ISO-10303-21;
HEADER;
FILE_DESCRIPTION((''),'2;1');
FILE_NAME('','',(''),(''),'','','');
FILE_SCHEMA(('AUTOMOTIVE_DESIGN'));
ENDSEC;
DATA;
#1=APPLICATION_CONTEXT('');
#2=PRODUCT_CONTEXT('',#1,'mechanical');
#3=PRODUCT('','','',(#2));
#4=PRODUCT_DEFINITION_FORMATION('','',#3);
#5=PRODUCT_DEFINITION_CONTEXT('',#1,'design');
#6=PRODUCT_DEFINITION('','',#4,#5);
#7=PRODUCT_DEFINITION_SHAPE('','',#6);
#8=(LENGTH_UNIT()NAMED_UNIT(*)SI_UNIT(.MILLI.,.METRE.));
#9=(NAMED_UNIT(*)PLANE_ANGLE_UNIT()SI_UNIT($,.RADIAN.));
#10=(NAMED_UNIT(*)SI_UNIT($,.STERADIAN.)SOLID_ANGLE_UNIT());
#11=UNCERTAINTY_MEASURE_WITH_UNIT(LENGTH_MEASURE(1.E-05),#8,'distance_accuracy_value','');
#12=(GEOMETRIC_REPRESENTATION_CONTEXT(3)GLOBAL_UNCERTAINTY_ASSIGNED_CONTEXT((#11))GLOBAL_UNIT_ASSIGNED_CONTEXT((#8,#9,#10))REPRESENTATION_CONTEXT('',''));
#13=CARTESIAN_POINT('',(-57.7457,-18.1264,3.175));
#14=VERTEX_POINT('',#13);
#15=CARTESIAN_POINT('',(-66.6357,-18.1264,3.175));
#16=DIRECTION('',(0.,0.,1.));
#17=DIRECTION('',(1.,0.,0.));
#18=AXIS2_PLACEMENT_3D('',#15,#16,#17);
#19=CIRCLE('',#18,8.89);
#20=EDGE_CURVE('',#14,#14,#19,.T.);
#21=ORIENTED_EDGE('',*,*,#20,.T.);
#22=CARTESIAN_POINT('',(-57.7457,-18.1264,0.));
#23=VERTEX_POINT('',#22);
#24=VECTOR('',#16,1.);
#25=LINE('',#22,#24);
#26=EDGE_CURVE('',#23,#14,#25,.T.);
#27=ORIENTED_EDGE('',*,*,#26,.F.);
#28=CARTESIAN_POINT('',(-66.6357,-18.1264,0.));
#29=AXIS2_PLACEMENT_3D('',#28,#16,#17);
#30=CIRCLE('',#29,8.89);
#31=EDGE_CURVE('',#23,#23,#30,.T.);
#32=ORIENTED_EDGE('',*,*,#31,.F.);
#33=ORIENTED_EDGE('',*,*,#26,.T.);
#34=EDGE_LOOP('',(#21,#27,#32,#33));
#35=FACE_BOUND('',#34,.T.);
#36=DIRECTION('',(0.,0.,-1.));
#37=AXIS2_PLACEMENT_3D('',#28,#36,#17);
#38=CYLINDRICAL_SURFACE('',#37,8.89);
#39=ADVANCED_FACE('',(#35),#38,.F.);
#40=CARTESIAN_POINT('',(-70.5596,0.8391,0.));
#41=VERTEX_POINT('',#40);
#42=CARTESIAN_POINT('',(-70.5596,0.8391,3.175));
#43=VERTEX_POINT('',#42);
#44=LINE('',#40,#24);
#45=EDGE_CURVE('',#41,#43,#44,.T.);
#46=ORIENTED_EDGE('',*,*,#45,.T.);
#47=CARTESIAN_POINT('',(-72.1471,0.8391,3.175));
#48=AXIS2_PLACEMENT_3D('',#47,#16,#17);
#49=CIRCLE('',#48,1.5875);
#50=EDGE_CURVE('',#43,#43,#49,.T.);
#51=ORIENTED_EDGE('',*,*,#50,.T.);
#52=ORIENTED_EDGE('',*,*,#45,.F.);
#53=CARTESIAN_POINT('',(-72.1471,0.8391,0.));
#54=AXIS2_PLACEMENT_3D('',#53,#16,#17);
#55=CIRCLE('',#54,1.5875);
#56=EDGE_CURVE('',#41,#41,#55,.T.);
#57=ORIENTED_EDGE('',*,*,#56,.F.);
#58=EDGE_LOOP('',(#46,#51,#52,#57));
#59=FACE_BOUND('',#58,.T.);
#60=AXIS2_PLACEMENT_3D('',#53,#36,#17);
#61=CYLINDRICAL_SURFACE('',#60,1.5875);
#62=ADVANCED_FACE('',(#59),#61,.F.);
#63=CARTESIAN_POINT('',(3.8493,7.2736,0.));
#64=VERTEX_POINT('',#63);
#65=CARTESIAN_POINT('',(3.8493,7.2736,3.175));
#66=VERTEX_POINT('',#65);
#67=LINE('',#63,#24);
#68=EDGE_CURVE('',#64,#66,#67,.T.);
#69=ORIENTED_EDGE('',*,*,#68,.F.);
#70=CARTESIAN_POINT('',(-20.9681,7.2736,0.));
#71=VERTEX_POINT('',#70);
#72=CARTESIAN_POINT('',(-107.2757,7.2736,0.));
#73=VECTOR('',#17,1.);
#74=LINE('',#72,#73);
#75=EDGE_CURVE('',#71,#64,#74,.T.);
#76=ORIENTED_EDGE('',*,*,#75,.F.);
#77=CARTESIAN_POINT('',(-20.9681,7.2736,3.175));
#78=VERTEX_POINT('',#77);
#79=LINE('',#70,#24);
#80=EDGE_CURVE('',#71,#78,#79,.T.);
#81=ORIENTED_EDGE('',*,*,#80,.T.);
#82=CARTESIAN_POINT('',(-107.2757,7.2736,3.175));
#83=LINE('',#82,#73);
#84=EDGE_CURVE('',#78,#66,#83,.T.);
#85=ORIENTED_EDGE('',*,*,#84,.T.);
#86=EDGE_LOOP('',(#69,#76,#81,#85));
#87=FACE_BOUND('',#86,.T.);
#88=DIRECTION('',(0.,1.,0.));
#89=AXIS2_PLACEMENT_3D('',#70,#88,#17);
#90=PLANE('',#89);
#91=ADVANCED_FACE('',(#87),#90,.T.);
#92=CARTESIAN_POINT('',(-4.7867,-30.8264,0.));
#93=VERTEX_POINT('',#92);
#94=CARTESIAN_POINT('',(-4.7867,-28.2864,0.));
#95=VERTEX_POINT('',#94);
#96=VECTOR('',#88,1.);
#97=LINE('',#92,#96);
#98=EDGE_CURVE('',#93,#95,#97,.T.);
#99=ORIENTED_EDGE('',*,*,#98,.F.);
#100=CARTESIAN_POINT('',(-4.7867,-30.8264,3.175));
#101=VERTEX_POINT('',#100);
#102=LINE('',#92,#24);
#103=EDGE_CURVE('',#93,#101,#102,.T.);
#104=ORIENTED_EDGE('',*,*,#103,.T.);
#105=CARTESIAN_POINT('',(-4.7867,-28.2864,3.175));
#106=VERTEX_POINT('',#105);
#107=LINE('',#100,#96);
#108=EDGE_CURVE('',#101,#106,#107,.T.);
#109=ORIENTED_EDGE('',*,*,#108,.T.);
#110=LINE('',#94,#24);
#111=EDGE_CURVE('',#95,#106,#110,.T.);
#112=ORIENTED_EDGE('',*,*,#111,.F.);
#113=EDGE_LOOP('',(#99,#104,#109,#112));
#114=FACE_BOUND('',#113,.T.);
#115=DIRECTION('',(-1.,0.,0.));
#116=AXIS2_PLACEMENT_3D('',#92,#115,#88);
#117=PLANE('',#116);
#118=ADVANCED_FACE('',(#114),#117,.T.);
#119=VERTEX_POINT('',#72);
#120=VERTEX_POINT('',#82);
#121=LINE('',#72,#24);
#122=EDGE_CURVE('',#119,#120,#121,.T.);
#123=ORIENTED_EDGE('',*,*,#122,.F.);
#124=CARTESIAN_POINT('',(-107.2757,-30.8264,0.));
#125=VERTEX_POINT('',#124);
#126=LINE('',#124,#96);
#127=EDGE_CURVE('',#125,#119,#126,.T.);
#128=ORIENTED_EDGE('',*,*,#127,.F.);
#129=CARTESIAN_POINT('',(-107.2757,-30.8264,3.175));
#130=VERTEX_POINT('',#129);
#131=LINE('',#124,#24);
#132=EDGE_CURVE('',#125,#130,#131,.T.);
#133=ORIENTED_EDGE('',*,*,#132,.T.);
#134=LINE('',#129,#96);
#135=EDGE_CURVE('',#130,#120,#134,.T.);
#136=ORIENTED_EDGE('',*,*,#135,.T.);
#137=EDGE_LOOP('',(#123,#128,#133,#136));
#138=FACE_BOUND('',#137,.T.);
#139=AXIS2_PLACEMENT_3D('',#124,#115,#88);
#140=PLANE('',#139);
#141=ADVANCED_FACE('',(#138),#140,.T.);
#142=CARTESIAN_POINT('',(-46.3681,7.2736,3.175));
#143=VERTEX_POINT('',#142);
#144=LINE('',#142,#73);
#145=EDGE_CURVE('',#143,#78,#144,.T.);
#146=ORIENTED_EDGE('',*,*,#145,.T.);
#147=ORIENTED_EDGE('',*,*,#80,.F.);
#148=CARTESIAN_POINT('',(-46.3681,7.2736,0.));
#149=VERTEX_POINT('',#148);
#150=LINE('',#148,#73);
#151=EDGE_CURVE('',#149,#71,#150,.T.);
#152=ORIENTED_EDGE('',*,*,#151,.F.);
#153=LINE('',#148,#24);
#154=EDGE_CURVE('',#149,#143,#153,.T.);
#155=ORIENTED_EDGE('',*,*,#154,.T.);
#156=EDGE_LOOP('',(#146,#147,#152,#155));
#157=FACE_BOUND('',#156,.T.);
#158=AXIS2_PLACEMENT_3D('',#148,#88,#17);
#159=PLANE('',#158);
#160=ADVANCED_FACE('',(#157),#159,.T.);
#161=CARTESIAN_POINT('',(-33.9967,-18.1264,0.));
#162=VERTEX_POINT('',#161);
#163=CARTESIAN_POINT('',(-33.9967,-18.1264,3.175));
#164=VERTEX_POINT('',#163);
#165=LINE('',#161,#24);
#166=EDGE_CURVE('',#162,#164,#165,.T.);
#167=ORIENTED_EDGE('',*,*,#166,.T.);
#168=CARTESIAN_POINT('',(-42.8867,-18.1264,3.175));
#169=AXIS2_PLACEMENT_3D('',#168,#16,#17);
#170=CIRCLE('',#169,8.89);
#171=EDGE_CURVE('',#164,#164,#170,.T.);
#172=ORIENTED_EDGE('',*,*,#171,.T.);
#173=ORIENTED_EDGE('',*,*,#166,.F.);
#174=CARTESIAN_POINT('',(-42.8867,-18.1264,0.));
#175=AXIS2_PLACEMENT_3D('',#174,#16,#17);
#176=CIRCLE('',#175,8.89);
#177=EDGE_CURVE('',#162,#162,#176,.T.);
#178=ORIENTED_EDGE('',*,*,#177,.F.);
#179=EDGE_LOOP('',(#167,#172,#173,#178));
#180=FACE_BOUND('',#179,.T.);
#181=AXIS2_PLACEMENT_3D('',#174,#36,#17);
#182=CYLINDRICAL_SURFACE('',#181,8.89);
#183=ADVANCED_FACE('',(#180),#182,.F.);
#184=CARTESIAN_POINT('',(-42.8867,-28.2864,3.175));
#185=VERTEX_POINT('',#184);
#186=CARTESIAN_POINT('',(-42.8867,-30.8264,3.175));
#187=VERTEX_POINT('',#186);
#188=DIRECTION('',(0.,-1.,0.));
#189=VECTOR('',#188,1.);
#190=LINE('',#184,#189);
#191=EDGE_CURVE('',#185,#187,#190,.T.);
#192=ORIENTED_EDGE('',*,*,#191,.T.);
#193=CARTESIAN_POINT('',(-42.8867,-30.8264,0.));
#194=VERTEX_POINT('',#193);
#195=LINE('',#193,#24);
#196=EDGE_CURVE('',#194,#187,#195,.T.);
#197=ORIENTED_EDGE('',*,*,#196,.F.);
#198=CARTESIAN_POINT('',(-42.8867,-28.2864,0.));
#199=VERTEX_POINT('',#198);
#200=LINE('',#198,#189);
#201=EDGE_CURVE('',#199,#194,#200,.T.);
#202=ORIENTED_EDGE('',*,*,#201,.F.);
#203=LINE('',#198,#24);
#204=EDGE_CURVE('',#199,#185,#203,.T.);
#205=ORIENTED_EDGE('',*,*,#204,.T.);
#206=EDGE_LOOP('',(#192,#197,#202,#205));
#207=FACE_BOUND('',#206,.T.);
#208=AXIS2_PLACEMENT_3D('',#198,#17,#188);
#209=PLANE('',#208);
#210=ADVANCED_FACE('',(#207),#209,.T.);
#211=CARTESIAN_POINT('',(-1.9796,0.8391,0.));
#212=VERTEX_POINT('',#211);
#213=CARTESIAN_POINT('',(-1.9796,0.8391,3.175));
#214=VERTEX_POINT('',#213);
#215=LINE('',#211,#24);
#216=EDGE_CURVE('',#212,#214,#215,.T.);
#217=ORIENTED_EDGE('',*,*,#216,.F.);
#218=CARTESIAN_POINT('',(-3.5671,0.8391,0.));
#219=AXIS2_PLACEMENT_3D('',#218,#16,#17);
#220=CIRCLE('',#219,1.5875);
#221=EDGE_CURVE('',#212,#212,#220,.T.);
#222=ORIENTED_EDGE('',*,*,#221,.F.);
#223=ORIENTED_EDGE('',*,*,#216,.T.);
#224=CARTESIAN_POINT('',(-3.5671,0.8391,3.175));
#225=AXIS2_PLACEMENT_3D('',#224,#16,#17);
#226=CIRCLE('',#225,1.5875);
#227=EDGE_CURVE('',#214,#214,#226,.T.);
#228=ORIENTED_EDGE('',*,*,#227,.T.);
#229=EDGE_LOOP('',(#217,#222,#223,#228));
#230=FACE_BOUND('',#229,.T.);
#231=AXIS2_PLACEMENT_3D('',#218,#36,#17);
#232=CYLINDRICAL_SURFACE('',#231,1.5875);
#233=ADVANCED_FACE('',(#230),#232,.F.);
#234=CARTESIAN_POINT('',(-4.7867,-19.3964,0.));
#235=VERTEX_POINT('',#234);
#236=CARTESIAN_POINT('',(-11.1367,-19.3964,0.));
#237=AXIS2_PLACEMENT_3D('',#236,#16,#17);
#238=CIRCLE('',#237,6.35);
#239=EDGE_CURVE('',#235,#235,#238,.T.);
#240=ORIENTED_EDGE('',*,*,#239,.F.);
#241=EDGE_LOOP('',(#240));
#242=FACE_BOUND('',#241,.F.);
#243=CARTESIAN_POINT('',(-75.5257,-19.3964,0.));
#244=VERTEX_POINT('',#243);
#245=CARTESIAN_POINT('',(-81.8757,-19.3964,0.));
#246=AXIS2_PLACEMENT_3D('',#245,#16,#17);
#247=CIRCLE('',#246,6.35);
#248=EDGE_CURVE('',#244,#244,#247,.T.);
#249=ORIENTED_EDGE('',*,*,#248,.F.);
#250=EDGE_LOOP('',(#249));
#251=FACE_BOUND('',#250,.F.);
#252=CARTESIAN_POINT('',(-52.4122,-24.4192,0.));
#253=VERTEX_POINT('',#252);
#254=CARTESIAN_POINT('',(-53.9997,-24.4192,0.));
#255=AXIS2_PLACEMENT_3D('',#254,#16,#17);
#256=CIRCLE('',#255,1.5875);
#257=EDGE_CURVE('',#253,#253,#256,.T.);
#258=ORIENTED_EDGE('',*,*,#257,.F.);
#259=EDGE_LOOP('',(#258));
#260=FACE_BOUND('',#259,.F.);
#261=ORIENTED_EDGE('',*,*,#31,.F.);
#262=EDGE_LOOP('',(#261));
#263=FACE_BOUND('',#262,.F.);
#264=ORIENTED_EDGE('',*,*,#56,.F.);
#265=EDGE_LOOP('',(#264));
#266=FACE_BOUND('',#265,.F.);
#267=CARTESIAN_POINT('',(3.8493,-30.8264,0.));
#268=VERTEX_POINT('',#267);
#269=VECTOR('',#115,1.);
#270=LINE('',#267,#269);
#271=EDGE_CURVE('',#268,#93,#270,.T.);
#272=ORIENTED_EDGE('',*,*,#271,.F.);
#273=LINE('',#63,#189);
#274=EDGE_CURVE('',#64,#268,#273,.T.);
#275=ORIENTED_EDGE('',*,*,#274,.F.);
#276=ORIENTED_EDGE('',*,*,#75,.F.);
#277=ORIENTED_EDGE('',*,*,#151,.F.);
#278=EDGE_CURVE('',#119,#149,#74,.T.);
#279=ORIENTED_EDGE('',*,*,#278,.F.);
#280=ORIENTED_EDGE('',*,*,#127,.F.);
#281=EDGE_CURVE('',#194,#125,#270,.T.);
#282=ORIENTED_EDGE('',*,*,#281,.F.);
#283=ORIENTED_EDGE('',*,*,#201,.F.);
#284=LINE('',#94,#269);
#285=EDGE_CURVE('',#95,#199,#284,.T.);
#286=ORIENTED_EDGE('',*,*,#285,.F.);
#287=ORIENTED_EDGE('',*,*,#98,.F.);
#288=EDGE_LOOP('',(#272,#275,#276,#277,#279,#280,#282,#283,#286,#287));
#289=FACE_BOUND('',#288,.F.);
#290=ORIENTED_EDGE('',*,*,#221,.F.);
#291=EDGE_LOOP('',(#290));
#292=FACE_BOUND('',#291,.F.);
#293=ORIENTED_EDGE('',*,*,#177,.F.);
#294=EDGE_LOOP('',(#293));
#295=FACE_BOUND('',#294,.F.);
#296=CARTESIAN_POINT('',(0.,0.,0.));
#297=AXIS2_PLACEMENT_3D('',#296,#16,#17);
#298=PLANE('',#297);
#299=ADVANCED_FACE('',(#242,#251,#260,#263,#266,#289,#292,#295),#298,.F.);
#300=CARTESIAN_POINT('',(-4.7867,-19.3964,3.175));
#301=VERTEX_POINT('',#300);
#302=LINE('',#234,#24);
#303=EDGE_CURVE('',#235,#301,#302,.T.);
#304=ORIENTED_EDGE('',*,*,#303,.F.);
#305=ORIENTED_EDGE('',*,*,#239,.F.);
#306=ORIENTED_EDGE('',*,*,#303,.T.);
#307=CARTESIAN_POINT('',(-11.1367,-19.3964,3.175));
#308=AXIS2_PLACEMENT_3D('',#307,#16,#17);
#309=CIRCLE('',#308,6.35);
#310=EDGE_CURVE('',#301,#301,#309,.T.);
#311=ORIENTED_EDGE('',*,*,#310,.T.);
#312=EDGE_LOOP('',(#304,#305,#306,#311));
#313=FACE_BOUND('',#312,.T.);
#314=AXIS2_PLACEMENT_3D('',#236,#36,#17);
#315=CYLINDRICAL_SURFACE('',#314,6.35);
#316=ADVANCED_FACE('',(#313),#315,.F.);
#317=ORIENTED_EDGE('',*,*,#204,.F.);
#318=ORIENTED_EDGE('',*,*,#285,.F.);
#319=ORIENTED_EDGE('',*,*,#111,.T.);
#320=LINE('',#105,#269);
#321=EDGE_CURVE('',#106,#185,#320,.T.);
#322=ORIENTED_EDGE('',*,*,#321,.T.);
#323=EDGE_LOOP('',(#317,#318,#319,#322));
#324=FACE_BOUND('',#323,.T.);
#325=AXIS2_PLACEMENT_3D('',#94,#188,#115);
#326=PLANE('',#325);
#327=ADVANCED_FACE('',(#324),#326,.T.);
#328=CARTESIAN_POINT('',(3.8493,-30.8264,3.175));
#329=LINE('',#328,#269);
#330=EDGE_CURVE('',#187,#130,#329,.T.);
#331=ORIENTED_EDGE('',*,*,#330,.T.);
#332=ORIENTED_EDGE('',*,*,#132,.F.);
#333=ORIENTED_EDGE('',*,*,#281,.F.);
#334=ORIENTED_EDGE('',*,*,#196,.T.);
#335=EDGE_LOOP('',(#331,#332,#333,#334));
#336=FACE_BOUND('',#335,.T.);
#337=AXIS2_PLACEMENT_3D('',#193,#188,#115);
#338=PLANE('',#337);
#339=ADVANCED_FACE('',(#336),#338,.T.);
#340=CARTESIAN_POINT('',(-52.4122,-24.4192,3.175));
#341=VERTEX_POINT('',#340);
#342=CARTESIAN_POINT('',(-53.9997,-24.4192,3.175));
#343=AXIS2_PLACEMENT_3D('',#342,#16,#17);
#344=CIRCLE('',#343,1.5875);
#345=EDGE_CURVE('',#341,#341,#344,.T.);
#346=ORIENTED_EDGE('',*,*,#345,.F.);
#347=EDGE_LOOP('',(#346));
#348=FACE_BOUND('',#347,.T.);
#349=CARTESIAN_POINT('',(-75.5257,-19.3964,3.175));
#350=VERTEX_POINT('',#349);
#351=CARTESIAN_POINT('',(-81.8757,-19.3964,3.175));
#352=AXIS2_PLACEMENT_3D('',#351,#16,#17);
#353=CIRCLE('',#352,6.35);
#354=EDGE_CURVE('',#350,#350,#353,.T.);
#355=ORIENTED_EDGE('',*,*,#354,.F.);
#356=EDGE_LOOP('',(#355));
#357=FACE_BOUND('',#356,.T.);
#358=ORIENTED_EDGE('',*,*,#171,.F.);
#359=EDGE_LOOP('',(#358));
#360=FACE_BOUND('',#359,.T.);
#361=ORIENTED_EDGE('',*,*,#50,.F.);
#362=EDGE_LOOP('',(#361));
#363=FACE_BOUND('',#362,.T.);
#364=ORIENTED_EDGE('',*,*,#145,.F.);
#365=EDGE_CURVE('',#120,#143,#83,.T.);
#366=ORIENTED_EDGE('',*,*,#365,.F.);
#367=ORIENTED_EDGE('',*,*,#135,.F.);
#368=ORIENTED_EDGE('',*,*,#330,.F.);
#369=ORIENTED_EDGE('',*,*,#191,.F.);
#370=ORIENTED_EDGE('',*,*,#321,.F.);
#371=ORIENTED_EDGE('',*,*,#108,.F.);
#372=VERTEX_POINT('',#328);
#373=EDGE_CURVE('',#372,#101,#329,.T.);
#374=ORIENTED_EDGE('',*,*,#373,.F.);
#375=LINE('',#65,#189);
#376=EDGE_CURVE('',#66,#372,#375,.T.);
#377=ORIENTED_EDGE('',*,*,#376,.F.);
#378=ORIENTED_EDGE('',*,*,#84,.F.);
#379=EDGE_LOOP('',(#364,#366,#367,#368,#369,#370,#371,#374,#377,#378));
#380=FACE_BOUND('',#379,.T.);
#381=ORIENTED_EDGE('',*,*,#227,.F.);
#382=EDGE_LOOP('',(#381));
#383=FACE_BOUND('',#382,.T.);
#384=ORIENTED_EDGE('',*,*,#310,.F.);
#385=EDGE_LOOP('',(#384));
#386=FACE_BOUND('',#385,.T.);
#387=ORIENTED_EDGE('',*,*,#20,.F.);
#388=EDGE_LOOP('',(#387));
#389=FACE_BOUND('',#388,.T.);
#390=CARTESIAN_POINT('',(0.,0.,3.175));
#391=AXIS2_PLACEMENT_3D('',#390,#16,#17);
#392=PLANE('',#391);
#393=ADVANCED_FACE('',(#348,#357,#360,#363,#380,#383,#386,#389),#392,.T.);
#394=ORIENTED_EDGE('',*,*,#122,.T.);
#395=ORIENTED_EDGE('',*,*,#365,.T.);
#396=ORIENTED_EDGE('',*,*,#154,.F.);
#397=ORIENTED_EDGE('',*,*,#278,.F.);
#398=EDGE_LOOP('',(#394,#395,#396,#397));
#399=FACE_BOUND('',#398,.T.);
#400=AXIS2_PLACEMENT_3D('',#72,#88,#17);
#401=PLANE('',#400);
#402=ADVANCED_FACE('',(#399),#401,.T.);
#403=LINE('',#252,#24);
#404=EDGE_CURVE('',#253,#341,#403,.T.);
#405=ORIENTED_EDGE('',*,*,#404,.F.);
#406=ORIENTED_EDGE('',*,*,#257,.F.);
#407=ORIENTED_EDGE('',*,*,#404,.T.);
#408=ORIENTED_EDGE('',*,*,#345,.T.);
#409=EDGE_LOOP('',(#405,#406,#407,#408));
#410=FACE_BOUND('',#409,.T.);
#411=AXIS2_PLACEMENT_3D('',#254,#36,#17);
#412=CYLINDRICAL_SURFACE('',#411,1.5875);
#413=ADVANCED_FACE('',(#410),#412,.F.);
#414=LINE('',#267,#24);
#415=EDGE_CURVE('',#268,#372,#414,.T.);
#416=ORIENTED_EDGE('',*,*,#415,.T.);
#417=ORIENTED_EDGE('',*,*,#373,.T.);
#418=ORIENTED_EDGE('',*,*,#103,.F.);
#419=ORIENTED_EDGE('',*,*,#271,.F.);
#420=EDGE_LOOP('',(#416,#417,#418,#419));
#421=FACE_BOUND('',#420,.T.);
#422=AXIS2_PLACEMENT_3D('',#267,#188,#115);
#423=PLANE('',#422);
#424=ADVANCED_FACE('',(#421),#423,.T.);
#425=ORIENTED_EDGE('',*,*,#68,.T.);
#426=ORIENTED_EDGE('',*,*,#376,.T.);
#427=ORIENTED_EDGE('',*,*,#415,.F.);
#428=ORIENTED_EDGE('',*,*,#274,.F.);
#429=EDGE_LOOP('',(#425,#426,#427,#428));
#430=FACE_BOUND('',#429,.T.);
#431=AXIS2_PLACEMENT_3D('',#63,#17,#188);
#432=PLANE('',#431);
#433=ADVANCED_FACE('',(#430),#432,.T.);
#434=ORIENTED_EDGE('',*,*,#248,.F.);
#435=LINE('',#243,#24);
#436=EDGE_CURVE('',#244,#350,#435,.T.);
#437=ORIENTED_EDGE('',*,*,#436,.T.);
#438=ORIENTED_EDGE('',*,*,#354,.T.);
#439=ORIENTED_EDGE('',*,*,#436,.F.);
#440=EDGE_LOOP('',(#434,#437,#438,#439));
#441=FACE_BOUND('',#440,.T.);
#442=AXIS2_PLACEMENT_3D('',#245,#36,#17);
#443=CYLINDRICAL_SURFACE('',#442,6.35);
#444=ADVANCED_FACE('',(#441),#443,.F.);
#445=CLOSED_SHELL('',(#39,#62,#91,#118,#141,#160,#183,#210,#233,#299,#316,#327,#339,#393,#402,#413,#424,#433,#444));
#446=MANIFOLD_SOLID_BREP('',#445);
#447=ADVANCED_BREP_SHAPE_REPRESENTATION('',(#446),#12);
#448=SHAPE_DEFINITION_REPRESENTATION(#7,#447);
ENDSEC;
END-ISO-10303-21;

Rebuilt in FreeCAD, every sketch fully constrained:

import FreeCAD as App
import Part
import Sketcher
Q = App.Units.Quantity

doc = App.newDocument("Part")
body = doc.addObject("PartDesign::Body", "Body")

# Sketch on XY plane
sketch1 = body.newObject("Sketcher::SketchObject", "Sketch")
sketch1.AttachmentSupport = (doc.getObject("XY_Plane"), [""])
sketch1.MapMode = "FlatFace"
sketch1.addGeometry(Part.LineSegment(App.Vector(3.8, 7.3, 0), App.Vector(-107.3, 7.3, 0)), False)
sketch1.addGeometry(Part.LineSegment(App.Vector(-107.3, 7.3, 0), App.Vector(-107.3, -30.8, 0)), False)
sketch1.addGeometry(Part.LineSegment(App.Vector(-107.3, -30.8, 0), App.Vector(-42.9, -30.8, 0)), False)
sketch1.addGeometry(Part.LineSegment(App.Vector(-42.9, -30.8, 0), App.Vector(-42.9, -28.3, 0)), False)
sketch1.addGeometry(Part.LineSegment(App.Vector(-42.9, -28.3, 0), App.Vector(-4.8, -28.3, 0)), False)
sketch1.addGeometry(Part.LineSegment(App.Vector(-4.8, -28.3, 0), App.Vector(-4.8, -30.8, 0)), False)
sketch1.addGeometry(Part.LineSegment(App.Vector(-4.8, -30.8, 0), App.Vector(3.8, -30.8, 0)), False)
sketch1.addGeometry(Part.LineSegment(App.Vector(3.8, -30.8, 0), App.Vector(3.8, 7.3, 0)), False)
sketch1.addGeometry(Part.Circle(App.Vector(-54, -24.4, 0), App.Vector(0, 0, 1), 1.6), False)
sketch1.addGeometry(Part.Circle(App.Vector(-81.9, -19.4, 0), App.Vector(0, 0, 1), 6.3), False)
sketch1.addGeometry(Part.Circle(App.Vector(-66.6, -18.1, 0), App.Vector(0, 0, 1), 8.9), False)
sketch1.addGeometry(Part.Circle(App.Vector(-42.9, -18.1, 0), App.Vector(0, 0, 1), 8.9), False)
sketch1.addGeometry(Part.Circle(App.Vector(-11.1, -19.4, 0), App.Vector(0, 0, 1), 6.3), False)
sketch1.addGeometry(Part.Circle(App.Vector(-72.1, 0.8, 0), App.Vector(0, 0, 1), 1.6), False)
sketch1.addGeometry(Part.Circle(App.Vector(-3.6, 0.8, 0), App.Vector(0, 0, 1), 1.6), False)
sketch1.addConstraint(Sketcher.Constraint("Coincident", 0, 2, 1, 1))
sketch1.addConstraint(Sketcher.Constraint("Coincident", 1, 2, 2, 1))
sketch1.addConstraint(Sketcher.Constraint("Coincident", 2, 2, 3, 1))
sketch1.addConstraint(Sketcher.Constraint("Coincident", 3, 2, 4, 1))
sketch1.addConstraint(Sketcher.Constraint("Coincident", 4, 2, 5, 1))
sketch1.addConstraint(Sketcher.Constraint("Coincident", 5, 2, 6, 1))
sketch1.addConstraint(Sketcher.Constraint("Coincident", 6, 2, 7, 1))
sketch1.addConstraint(Sketcher.Constraint("Coincident", 7, 2, 0, 1))
sketch1.addConstraint(Sketcher.Constraint("Horizontal", 0))
sketch1.addConstraint(Sketcher.Constraint("Vertical", 1))
sketch1.addConstraint(Sketcher.Constraint("Horizontal", 2))
sketch1.addConstraint(Sketcher.Constraint("Vertical", 3))
sketch1.addConstraint(Sketcher.Constraint("Horizontal", 4))
sketch1.addConstraint(Sketcher.Constraint("Vertical", 5))
sketch1.addConstraint(Sketcher.Constraint("Horizontal", 6))
sketch1.addConstraint(Sketcher.Constraint("Vertical", 7))
sketch1.addConstraint(Sketcher.Constraint("Equal", 10, 11))
sketch1.addConstraint(Sketcher.Constraint("Equal", 9, 12))
sketch1.addConstraint(Sketcher.Constraint("Equal", 8, 13))
sketch1.addConstraint(Sketcher.Constraint("Equal", 13, 14))
sketch1.addConstraint(Sketcher.Constraint("Horizontal", 10, 3, 11, 3))
sketch1.addConstraint(Sketcher.Constraint("Horizontal", 9, 3, 12, 3))
sketch1.addConstraint(Sketcher.Constraint("Horizontal", 13, 3, 14, 3))
sketch1.addConstraint(Sketcher.Constraint("Horizontal", 2, 2, 5, 2))
sketch1.addConstraint(Sketcher.Constraint("Vertical", 11, 3, 2, 2))
sketch1.addConstraint(Sketcher.Constraint("Equal", 4, 1))
sketch1.addConstraint(Sketcher.Constraint("Diameter", 9, Q("0.5 in")))
sketch1.addConstraint(Sketcher.Constraint("Diameter", 10, Q("0.7 in")))
sketch1.addConstraint(Sketcher.Constraint("Diameter", 8, Q("0.125 in")))
sketch1.addConstraint(Sketcher.Constraint("DistanceX", 4, 1, 4, 2, Q("1.5 in")))
sketch1.addConstraint(Sketcher.Constraint("DistanceY", 3, 1, 3, 2, Q("0.1 in")))
sketch1.addConstraint(Sketcher.Constraint("DistanceX", 0, 2, 9, 3, Q("1 in")))
sketch1.addConstraint(Sketcher.Constraint("DistanceY", 10, 3, 0, 2, Q("1 in")))
sketch1.addConstraint(Sketcher.Constraint("DistanceX", 9, 3, 10, 3, Q("0.6 in")))
sketch1.addConstraint(Sketcher.Constraint("DistanceX", 13, 3, 14, 3, Q("2.7 in")))
sketch1.addConstraint(Sketcher.Constraint("DistanceX", 0, 2, 0, 1, Q("4.375 in")))
sketch1.addConstraint(Sketcher.Constraint("DistanceX", 11, 3, 12, 3, Q("1.25 in")))
sketch1.addConstraint(Sketcher.Constraint("DistanceY", 1, 2, 9, 3, Q("0.45 in")))
sketch1.addConstraint(Sketcher.Constraint("DistanceX", 10, 3, 11, 3, Q("0.935 in")))
sketch1.addConstraint(Sketcher.Constraint("DistanceX", 8, 3, 11, 3, 11.113))
sketch1.addConstraint(Sketcher.Constraint("DistanceX", 13, 3, 10, 3, 5.5114))
sketch1.addConstraint(Sketcher.Constraint("DistanceY", 13, 3, 0, 2, 6.4345))
sketch1.addConstraint(Sketcher.Constraint("DistanceY", 1, 2, 8, 3, 6.4072))
sketch1.addConstraint(Sketcher.Constraint("DistanceX", 8, 3, -1, 1, 53.9997))
sketch1.addConstraint(Sketcher.Constraint("DistanceY", 8, 3, -1, 1, 24.4192))
pad1 = body.newObject("PartDesign::Pad", "Pad")
pad1.Profile = sketch1
pad1.Length = Q("0.125 in")

doc.recompute()
